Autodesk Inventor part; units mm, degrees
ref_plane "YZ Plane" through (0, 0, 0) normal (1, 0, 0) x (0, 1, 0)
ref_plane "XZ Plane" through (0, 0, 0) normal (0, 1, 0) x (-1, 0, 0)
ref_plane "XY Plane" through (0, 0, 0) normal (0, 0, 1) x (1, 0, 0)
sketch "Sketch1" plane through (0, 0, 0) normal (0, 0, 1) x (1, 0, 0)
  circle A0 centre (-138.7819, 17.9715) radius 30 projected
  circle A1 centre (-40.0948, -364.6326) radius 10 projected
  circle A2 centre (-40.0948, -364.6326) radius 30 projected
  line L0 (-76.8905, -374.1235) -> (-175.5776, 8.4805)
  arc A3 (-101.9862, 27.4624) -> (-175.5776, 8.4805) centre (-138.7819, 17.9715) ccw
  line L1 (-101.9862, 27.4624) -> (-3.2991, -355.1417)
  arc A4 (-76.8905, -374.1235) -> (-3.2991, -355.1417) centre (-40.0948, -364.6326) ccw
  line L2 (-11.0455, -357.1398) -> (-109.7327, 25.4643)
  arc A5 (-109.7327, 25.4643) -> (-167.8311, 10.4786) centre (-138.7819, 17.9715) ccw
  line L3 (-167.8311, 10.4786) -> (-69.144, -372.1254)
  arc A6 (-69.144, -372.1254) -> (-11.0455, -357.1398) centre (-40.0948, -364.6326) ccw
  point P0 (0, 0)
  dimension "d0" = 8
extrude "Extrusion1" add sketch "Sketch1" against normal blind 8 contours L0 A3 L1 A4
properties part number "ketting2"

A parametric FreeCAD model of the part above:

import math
import FreeCAD as App
import Part
import Sketcher
from FreeCAD import Vector

doc = App.newDocument("Part")
body = doc.addObject("PartDesign::Body", "Body")

# Sketch on XY plane
sketch1 = body.newObject("Sketcher::SketchObject", "Sketch")
sketch1.AttachmentSupport = (doc.getObject("XY_Plane"), [""])
sketch1.MapMode = "FlatFace"
sketch1.addGeometry(Part.LineSegment(Vector(-175.5776, 8.4805, 0), Vector(-76.8905, -374.1235, 0)), False)
sketch1.addGeometry(Part.ArcOfCircle(Part.Circle(Vector(-40.0948, -364.6326, 0), Vector(0, 0, 1), 38.000009), math.radians(-165.536662), math.radians(14.463338)), False)
sketch1.addGeometry(Part.LineSegment(Vector(-3.2991, -355.1417, 0), Vector(-101.9862, 27.4624, 0)), False)
sketch1.addGeometry(Part.ArcOfCircle(Part.Circle(Vector(-138.7819, 17.9715, 0), Vector(0, 0, 1), 38.000009), math.radians(14.463338), math.radians(194.463484)), False)
sketch1.addGeometry(Part.ArcOfCircle(Part.Circle(Vector(-138.7819, 17.9715, 0), Vector(0, 0, 1), 30), math.radians(14.463327), math.radians(194.463511)), False)
sketch1.addGeometry(Part.LineSegment(Vector(-109.7327, 25.4643, 0), Vector(-11.0455, -357.1398, 0)), False)
sketch1.addGeometry(Part.ArcOfCircle(Part.Circle(Vector(-40.0948, -364.6326, 0), Vector(0, 0, 1), 30), math.radians(-165.536673), math.radians(14.463279)), False)
sketch1.addGeometry(Part.LineSegment(Vector(-69.144, -372.1254, 0), Vector(-167.8311, 10.4786, 0)), False)
sketch1.addConstraint(Sketcher.Constraint("Coincident", 0, 2, 1, 1))
sketch1.addConstraint(Sketcher.Constraint("Coincident", 1, 2, 2, 1))
sketch1.addConstraint(Sketcher.Constraint("Coincident", 2, 2, 3, 1))
sketch1.addConstraint(Sketcher.Constraint("Coincident", 3, 2, 0, 1))
sketch1.addConstraint(Sketcher.Constraint("Coincident", 4, 1, 5, 1))
sketch1.addConstraint(Sketcher.Constraint("Coincident", 5, 2, 6, 2))
sketch1.addConstraint(Sketcher.Constraint("Coincident", 6, 1, 7, 1))
sketch1.addConstraint(Sketcher.Constraint("Coincident", 7, 2, 4, 2))
sketch1.addConstraint(Sketcher.Constraint("Coincident", 4, 3, 3, 3))
sketch1.addConstraint(Sketcher.Constraint("Coincident", 6, 3, 1, 3))
sketch1.addConstraint(Sketcher.Constraint("Radius", 1, 38.0))
sketch1.addConstraint(Sketcher.Constraint("Radius", 3, 38.0))
sketch1.addConstraint(Sketcher.Constraint("Radius", 4, 30.0))
sketch1.addConstraint(Sketcher.Constraint("Radius", 6, 30.0))
sketch1.addConstraint(Sketcher.Constraint("DistanceX", 3, 3, -1, 1, 138.782))
sketch1.addConstraint(Sketcher.Constraint("DistanceX", 1, 2, -1, 1, 3.299))
sketch1.addConstraint(Sketcher.Constraint("DistanceX", 6, 1, -1, 1, 69.144))
sketch1.addConstraint(Sketcher.Constraint("DistanceX", 7, 2, -1, 1, 167.831))
sketch1.addConstraint(Sketcher.Constraint("DistanceX", 3, 3, 1, 3, 98.687))
sketch1.addConstraint(Sketcher.Constraint("DistanceY", 1, 3, 3, 3, 382.604))
sketch1.addConstraint(Sketcher.Constraint("DistanceY", 0, 2, 1, 3, 9.491))
sketch1.addConstraint(Sketcher.Constraint("DistanceY", 3, 3, 2, 2, 9.491))
sketch1.addConstraint(Sketcher.Constraint("DistanceY", 3, 2, 3, 3, 9.491))
sketch1.addConstraint(Sketcher.Constraint("DistanceY", 4, 1, 2, 2, 1.998))
sketch1.addConstraint(Sketcher.Constraint("DistanceY", 5, 2, 1, 2, 1.998))
sketch1.addConstraint(Sketcher.Constraint("DistanceY", 1, 3, -1, 1, 364.6326))
pad1 = body.newObject("PartDesign::Pad", "Pad")
pad1.Profile = sketch1
pad1.Length = 8
pad1.Reversed = True

doc.recompute()
